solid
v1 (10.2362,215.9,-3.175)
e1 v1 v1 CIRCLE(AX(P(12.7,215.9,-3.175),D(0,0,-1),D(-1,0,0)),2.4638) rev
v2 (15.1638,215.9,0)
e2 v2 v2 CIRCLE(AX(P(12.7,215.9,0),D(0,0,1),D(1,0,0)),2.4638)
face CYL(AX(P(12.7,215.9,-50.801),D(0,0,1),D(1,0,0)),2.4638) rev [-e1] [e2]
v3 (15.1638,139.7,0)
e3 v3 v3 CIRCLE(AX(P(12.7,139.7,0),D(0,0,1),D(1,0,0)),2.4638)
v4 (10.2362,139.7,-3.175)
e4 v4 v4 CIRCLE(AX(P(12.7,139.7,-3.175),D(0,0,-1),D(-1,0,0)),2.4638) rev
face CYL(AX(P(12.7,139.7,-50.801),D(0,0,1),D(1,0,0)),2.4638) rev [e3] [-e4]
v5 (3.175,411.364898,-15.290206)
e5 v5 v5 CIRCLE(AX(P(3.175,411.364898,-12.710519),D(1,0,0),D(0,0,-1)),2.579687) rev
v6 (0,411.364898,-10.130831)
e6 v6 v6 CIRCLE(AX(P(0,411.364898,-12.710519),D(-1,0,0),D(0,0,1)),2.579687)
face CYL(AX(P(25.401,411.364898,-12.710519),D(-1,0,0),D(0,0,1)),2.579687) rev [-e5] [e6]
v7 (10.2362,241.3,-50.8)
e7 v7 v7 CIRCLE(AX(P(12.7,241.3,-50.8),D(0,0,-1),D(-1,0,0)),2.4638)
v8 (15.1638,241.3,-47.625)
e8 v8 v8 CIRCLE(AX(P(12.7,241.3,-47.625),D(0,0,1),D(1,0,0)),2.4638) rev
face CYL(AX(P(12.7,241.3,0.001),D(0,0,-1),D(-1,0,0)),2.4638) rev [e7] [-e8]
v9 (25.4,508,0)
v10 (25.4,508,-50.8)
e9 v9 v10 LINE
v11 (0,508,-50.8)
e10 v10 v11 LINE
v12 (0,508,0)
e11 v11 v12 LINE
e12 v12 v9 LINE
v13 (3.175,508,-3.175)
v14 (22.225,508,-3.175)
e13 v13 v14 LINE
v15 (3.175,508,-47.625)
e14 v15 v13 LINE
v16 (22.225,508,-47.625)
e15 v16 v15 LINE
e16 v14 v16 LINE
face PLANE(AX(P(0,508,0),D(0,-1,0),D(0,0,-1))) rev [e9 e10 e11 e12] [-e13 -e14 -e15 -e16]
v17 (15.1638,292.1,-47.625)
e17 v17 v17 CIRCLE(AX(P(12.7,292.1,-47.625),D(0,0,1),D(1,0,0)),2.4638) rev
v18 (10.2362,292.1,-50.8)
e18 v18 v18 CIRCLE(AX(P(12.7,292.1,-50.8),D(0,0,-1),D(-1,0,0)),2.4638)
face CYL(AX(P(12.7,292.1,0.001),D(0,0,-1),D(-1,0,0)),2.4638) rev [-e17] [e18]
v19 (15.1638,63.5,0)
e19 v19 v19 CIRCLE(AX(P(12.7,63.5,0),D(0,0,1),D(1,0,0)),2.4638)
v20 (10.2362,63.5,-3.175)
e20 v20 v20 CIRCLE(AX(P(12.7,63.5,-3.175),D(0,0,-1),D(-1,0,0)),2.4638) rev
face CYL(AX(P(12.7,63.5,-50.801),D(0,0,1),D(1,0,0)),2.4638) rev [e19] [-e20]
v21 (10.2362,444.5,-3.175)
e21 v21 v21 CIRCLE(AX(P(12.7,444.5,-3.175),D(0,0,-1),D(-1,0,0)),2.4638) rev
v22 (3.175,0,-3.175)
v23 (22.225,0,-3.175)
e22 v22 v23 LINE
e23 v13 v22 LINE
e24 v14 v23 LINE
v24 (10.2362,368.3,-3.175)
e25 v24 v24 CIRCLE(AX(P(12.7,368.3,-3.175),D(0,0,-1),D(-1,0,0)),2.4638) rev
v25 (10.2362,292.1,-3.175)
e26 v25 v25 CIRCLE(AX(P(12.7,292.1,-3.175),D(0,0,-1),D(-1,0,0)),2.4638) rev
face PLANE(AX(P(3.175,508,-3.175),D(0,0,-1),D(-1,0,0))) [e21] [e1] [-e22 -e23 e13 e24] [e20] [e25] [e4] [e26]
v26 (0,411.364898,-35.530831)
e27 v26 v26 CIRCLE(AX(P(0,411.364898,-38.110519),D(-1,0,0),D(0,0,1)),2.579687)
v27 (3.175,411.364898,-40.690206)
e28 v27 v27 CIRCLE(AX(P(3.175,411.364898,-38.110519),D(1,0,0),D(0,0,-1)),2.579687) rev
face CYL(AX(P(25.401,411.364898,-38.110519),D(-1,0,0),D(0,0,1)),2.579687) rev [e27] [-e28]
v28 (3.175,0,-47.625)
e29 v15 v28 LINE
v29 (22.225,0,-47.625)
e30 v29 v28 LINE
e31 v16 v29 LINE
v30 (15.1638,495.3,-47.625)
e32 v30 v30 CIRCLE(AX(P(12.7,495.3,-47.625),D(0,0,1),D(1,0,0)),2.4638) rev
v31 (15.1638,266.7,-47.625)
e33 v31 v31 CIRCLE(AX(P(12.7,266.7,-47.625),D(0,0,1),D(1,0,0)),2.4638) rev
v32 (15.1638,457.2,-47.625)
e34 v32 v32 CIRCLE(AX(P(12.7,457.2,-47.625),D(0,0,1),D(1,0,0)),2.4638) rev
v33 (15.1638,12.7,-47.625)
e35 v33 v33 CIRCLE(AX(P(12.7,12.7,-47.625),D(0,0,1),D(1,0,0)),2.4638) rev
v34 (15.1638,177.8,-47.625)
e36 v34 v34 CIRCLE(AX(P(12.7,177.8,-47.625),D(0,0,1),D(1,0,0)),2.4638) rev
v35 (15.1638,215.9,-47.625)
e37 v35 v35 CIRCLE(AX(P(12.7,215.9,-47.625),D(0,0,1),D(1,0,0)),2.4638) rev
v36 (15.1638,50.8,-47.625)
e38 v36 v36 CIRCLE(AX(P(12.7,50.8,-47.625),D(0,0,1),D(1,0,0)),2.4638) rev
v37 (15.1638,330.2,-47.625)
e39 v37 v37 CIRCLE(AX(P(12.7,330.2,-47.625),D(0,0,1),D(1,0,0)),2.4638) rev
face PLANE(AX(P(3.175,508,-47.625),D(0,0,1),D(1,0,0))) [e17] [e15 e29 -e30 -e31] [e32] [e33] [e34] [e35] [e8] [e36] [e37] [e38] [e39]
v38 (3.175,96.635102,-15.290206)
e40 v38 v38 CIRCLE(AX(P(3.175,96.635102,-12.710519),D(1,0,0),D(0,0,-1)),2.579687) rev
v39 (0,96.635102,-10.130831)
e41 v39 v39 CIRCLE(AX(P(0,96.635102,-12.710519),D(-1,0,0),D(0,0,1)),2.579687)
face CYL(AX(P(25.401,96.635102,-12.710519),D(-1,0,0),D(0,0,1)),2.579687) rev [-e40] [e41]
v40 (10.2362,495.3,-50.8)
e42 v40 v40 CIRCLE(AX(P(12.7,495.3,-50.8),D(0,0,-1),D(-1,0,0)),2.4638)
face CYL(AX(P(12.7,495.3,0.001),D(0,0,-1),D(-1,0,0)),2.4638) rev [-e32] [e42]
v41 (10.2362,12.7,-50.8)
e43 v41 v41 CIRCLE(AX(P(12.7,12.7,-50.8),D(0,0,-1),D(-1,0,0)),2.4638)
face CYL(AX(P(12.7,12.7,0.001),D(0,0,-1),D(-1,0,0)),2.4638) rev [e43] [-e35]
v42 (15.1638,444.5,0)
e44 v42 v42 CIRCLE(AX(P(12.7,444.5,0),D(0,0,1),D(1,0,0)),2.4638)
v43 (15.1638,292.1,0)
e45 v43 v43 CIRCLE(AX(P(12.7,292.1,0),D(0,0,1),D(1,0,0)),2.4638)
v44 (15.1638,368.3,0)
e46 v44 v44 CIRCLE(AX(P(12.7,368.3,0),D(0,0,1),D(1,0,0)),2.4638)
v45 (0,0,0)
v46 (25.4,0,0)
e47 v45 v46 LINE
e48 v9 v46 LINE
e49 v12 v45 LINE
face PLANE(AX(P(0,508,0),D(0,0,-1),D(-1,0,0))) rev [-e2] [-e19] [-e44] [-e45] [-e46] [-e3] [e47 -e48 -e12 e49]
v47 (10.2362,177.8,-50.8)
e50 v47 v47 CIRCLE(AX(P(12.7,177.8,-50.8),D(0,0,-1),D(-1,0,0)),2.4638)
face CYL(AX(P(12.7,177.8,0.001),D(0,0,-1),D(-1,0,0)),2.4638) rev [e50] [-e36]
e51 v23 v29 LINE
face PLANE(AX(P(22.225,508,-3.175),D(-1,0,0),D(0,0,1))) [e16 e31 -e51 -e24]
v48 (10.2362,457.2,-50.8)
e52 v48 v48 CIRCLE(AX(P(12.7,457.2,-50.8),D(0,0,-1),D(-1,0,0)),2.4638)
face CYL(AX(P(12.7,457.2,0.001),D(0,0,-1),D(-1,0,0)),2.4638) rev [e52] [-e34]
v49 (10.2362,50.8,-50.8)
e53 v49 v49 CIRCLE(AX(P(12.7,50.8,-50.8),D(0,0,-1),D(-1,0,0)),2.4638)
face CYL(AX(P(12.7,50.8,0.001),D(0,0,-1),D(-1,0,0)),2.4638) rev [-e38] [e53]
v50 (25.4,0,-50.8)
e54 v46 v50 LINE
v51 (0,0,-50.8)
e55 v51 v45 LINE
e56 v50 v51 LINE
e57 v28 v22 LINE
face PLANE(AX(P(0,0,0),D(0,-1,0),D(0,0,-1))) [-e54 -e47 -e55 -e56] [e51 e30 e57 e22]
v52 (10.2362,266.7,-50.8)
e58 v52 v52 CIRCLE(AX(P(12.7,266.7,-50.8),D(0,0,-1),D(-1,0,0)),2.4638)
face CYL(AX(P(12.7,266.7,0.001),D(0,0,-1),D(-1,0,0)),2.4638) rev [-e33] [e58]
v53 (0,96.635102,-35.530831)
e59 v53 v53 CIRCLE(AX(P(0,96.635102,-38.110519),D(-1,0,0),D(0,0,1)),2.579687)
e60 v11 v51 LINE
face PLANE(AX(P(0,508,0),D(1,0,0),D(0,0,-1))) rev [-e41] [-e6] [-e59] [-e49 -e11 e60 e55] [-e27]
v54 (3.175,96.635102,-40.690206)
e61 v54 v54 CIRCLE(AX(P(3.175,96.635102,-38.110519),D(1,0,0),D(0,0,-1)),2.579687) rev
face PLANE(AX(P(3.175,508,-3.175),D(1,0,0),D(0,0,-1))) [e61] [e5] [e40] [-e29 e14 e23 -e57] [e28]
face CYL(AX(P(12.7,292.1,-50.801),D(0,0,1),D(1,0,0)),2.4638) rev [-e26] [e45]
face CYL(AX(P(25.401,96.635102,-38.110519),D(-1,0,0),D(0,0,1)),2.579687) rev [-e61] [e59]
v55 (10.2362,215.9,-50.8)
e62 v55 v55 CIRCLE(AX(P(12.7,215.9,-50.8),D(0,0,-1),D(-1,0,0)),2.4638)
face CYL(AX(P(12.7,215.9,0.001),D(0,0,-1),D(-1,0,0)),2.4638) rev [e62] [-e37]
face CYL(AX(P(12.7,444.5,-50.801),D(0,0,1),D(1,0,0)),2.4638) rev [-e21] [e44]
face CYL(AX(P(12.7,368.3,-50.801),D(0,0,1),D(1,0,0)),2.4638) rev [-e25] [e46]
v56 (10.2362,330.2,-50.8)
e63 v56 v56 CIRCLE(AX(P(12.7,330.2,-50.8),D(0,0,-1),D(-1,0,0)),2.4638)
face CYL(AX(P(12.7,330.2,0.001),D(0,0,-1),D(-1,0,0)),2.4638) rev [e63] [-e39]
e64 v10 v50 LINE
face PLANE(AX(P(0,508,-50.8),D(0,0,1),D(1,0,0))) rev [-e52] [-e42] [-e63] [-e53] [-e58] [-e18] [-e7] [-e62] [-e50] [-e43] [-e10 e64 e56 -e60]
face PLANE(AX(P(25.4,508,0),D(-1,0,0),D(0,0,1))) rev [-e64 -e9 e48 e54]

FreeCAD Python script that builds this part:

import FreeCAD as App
import Part
import Sketcher

V = App.Vector
Q = App.Units.Quantity

doc = App.newDocument("Part")
body = doc.addObject("PartDesign::Body", "Body")

# Sketch on XZ plane
sketch1 = body.newObject("Sketcher::SketchObject", "Sketch")
sketch1.AttachmentSupport = (doc.getObject("XZ_Plane"), [""])
sketch1.MapMode = "FlatFace"
sketch1.addGeometry([
    Part.LineSegment(V(0, -51, 0), V(0, 0, 0)),  # 0
    Part.LineSegment(V(0, 0, 0), V(25, 0, 0)),  # 1
    Part.LineSegment(V(25, 0, 0), V(25, -51, 0)),  # 2
    Part.LineSegment(V(25, -51, 0), V(0, -51, 0)),  # 3
    Part.LineSegment(V(22, -3, 0), V(3, -3, 0)),  # 4
    Part.LineSegment(V(3, -3, 0), V(3, -48, 0)),  # 5
    Part.LineSegment(V(3, -48, 0), V(22, -48, 0)),  # 6
    Part.LineSegment(V(22, -48, 0), V(22, -3, 0)),  # 7
], False)
sketch1.addConstraint([
    Sketcher.Constraint("Coincident", 0, 2, 1, 1),
    Sketcher.Constraint("Coincident", 1, 2, 2, 1),
    Sketcher.Constraint("Coincident", 2, 2, 3, 1),
    Sketcher.Constraint("Coincident", 3, 2, 0, 1),
    Sketcher.Constraint("Coincident", 4, 2, 5, 1),
    Sketcher.Constraint("Coincident", 5, 2, 6, 1),
    Sketcher.Constraint("Coincident", 6, 2, 7, 1),
    Sketcher.Constraint("Coincident", 7, 2, 4, 1),
    Sketcher.Constraint("Vertical", 0),
    Sketcher.Constraint("Horizontal", 1),
    Sketcher.Constraint("Vertical", 2),
    Sketcher.Constraint("Horizontal", 3),
    Sketcher.Constraint("Horizontal", 4),
    Sketcher.Constraint("Vertical", 5),
    Sketcher.Constraint("Horizontal", 6),
    Sketcher.Constraint("Vertical", 7),
    Sketcher.Constraint("Coincident", 0, 2, -1, 1),
    Sketcher.Constraint("DistanceX", 1, 1, 1, 2, Q("1 in")),
    Sketcher.Constraint("DistanceY", 0, 1, 0, 2, Q("2 in")),
    Sketcher.Constraint("DistanceX", 4, 2, 4, 1, Q("0.75 in")),
    Sketcher.Constraint("DistanceY", 5, 2, 5, 1, Q("1.75 in")),
    Sketcher.Constraint("DistanceX", -1, 1, 4, 2, Q("0.125 in")),
    Sketcher.Constraint("DistanceY", 4, 2, -1, 1, Q("0.125 in")),
])
pad1 = body.newObject("PartDesign::Pad", "Pad")
pad1.Profile = sketch1
pad1.Length = Q("20 in")
pad1.Reversed = True

# Sketch on XY plane
sketch2 = body.newObject("Sketcher::SketchObject", "Sketch001")
sketch2.AttachmentSupport = (doc.getObject("XY_Plane"), [""])
sketch2.MapMode = "FlatFace"
sketch2.AttachmentOffset = App.Placement(V(0, 0, -2 * 25.4), App.Rotation())
sketch2.addGeometry(Part.Circle(V(12.7, 12.7, 0), V(0, 0, 1), 2.5), False)
sketch2.addConstraint([
    Sketcher.Constraint("Diameter", 0, Q("0.194 in")),
    Sketcher.Constraint("DistanceX", -1, 1, 0, 3, Q("0.5 in")),
    Sketcher.Constraint("DistanceY", -1, 1, 0, 3, Q("0.5 in")),
])
pocket1 = body.newObject("PartDesign::Pocket", "Pocket")
pocket1.Profile = sketch2
pocket1.Type = "UpToFirst"
pocket1.Reversed = True

# Sketch on XY plane
sketch3 = body.newObject("Sketcher::SketchObject", "Sketch002")
sketch3.AttachmentSupport = (doc.getObject("XY_Plane"), [""])
sketch3.MapMode = "FlatFace"
sketch3.AttachmentOffset = App.Placement(V(0, 0, -2 * 25.4), App.Rotation())
sketch3.addGeometry(Part.Circle(V(12.7, 50.8, 0), V(0, 0, 1), 2.5), False)
sketch3.addConstraint([
    Sketcher.Constraint("Diameter", 0, Q("0.194 in")),
    Sketcher.Constraint("DistanceY", -1, 1, 0, 3, Q("2 in")),
    Sketcher.Constraint("DistanceX", -1, 1, 0, 3, Q("0.5 in")),
])
pocket2 = body.newObject("PartDesign::Pocket", "Pocket001")
pocket2.Profile = sketch3
pocket2.Type = "UpToFirst"
pocket2.Reversed = True

# Sketch on XY plane
sketch4 = body.newObject("Sketcher::SketchObject", "Sketch003")
sketch4.AttachmentSupport = (doc.getObject("XY_Plane"), [""])
sketch4.MapMode = "FlatFace"
sketch4.AttachmentOffset = App.Placement(V(0, 0, -2 * 25.4), App.Rotation())
sketch4.addGeometry(Part.Circle(V(12.7, 177.8, 0), V(0, 0, 1), 2.5), False)
sketch4.addConstraint([
    Sketcher.Constraint("Diameter", 0, Q("0.194 in")),
    Sketcher.Constraint("DistanceY", -1, 1, 0, 3, Q("7 in")),
    Sketcher.Constraint("DistanceX", -1, 1, 0, 3, Q("0.5 in")),
])
pocket3 = body.newObject("PartDesign::Pocket", "Pocket002")
pocket3.Profile = sketch4
pocket3.Type = "UpToFirst"
pocket3.Reversed = True

# Sketch on XY plane
sketch5 = body.newObject("Sketcher::SketchObject", "Sketch004")
sketch5.AttachmentSupport = (doc.getObject("XY_Plane"), [""])
sketch5.MapMode = "FlatFace"
sketch5.AttachmentOffset = App.Placement(V(0, 0, -2 * 25.4), App.Rotation())
sketch5.addGeometry(Part.Circle(V(12.7, 215.9, 0), V(0, 0, 1), 2.5), False)
sketch5.addConstraint([
    Sketcher.Constraint("Diameter", 0, Q("0.194 in")),
    Sketcher.Constraint("DistanceX", -1, 1, 0, 3, Q("0.5 in")),
    Sketcher.Constraint("DistanceY", -1, 1, 0, 3, Q("8.5 in")),
])
pocket4 = body.newObject("PartDesign::Pocket", "Pocket003")
pocket4.Profile = sketch5
pocket4.Type = "UpToFirst"
pocket4.Reversed = True

# Sketch on XY plane
sketch6 = body.newObject("Sketcher::SketchObject", "Sketch005")
sketch6.AttachmentSupport = (doc.getObject("XY_Plane"), [""])
sketch6.MapMode = "FlatFace"
sketch6.AttachmentOffset = App.Placement(V(0, 0, -2 * 25.4), App.Rotation())
sketch6.addGeometry(Part.Circle(V(12.7, 241.3, 0), V(0, 0, 1), 2.5), False)
sketch6.addConstraint([
    Sketcher.Constraint("Diameter", 0, Q("0.194 in")),
    Sketcher.Constraint("DistanceX", -1, 1, 0, 3, Q("0.5 in")),
    Sketcher.Constraint("DistanceY", -1, 1, 0, 3, Q("9.5 in")),
])
pocket5 = body.newObject("PartDesign::Pocket", "Pocket004")
pocket5.Profile = sketch6
pocket5.Type = "UpToFirst"
pocket5.Reversed = True

# Sketch on XY plane
sketch7 = body.newObject("Sketcher::SketchObject", "Sketch006")
sketch7.AttachmentSupport = (doc.getObject("XY_Plane"), [""])
sketch7.MapMode = "FlatFace"
sketch7.AttachmentOffset = App.Placement(V(0, 0, -2 * 25.4), App.Rotation())
sketch7.addGeometry(Part.Circle(V(12.7, 266.7, 0), V(0, 0, 1), 2.5), False)
sketch7.addConstraint([
    Sketcher.Constraint("Diameter", 0, Q("0.194 in")),
    Sketcher.Constraint("DistanceX", -1, 1, 0, 3, Q("0.5 in")),
    Sketcher.Constraint("DistanceY", -1, 1, 0, 3, Q("10.5 in")),
])
pocket6 = body.newObject("PartDesign::Pocket", "Pocket005")
pocket6.Profile = sketch7
pocket6.Type = "UpToFirst"
pocket6.Reversed = True

# Sketch on XY plane
sketch8 = body.newObject("Sketcher::SketchObject", "Sketch007")
sketch8.AttachmentSupport = (doc.getObject("XY_Plane"), [""])
sketch8.MapMode = "FlatFace"
sketch8.AttachmentOffset = App.Placement(V(0, 0, -2 * 25.4), App.Rotation())
sketch8.addGeometry(Part.Circle(V(12.7, 292.1, 0), V(0, 0, 1), 2.5), False)
sketch8.addConstraint([
    Sketcher.Constraint("Diameter", 0, Q("0.194 in")),
    Sketcher.Constraint("DistanceX", -1, 1, 0, 3, Q("0.5 in")),
    Sketcher.Constraint("DistanceY", -1, 1, 0, 3, Q("11.5 in")),
])
pocket7 = body.newObject("PartDesign::Pocket", "Pocket006")
pocket7.Profile = sketch8
pocket7.Type = "UpToFirst"
pocket7.Reversed = True

# Sketch on XY plane
sketch9 = body.newObject("Sketcher::SketchObject", "Sketch008")
sketch9.AttachmentSupport = (doc.getObject("XY_Plane"), [""])
sketch9.MapMode = "FlatFace"
sketch9.AttachmentOffset = App.Placement(V(0, 0, -2 * 25.4), App.Rotation())
sketch9.addGeometry(Part.Circle(V(12.7, 330.2, 0), V(0, 0, 1), 2.5), False)
sketch9.addConstraint([
    Sketcher.Constraint("Diameter", 0, Q("0.194 in")),
    Sketcher.Constraint("DistanceY", -1, 1, 0, 3, Q("13 in")),
    Sketcher.Constraint("DistanceX", -1, 1, 0, 3, Q("0.5 in")),
])
pocket8 = body.newObject("PartDesign::Pocket", "Pocket007")
pocket8.Profile = sketch9
pocket8.Type = "UpToFirst"
pocket8.Reversed = True

# Sketch on XY plane
sketch10 = body.newObject("Sketcher::SketchObject", "Sketch009")
sketch10.AttachmentSupport = (doc.getObject("XY_Plane"), [""])
sketch10.MapMode = "FlatFace"
sketch10.AttachmentOffset = App.Placement(V(0, 0, -2 * 25.4), App.Rotation())
sketch10.addGeometry(Part.Circle(V(12.7, 457.2, 0), V(0, 0, 1), 2.5), False)
sketch10.addConstraint([
    Sketcher.Constraint("Diameter", 0, Q("0.194 in")),
    Sketcher.Constraint("DistanceY", -1, 1, 0, 3, Q("18 in")),
    Sketcher.Constraint("DistanceX", -1, 1, 0, 3, Q("0.5 in")),
])
pocket9 = body.newObject("PartDesign::Pocket", "Pocket008")
pocket9.Profile = sketch10
pocket9.Type = "UpToFirst"
pocket9.Reversed = True

# Sketch on XY plane
sketch11 = body.newObject("Sketcher::SketchObject", "Sketch010")
sketch11.AttachmentSupport = (doc.getObject("XY_Plane"), [""])
sketch11.MapMode = "FlatFace"
sketch11.AttachmentOffset = App.Placement(V(0, 0, -2 * 25.4), App.Rotation())
sketch11.addGeometry(Part.Circle(V(12.7, 495.3, 0), V(0, 0, 1), 2.5), False)
sketch11.addConstraint([
    Sketcher.Constraint("Diameter", 0, Q("0.194 in")),
    Sketcher.Constraint("DistanceX", -1, 1, 0, 3, Q("0.5 in")),
    Sketcher.Constraint("DistanceY", -1, 1, 0, 3, Q("19.5 in")),
])
pocket10 = body.newObject("PartDesign::Pocket", "Pocket009")
pocket10.Profile = sketch11
pocket10.Type = "UpToFirst"
pocket10.Reversed = True

# Sketch on XY plane
sketch12 = body.newObject("Sketcher::SketchObject", "Sketch011")
sketch12.AttachmentSupport = (doc.getObject("XY_Plane"), [""])
sketch12.MapMode = "FlatFace"
sketch12.addGeometry(Part.Circle(V(12.7, 63.5, 0), V(0, 0, 1), 2.5), False)
sketch12.addConstraint([
    Sketcher.Constraint("Diameter", 0, Q("0.194 in")),
    Sketcher.Constraint("DistanceX", -1, 1, 0, 3, Q("0.5 in")),
    Sketcher.Constraint("DistanceY", -1, 1, 0, 3, Q("2.5 in")),
])
pocket11 = body.newObject("PartDesign::Pocket", "Pocket010")
pocket11.Profile = sketch12
pocket11.Type = "UpToFirst"

# Sketch on XY plane
sketch13 = body.newObject("Sketcher::SketchObject", "Sketch012")
sketch13.AttachmentSupport = (doc.getObject("XY_Plane"), [""])
sketch13.MapMode = "FlatFace"
sketch13.addGeometry(Part.Circle(V(12.7, 139.7, 0), V(0, 0, 1), 2.5), False)
sketch13.addConstraint([
    Sketcher.Constraint("Diameter", 0, Q("0.194 in")),
    Sketcher.Constraint("DistanceX", -1, 1, 0, 3, Q("0.5 in")),
    Sketcher.Constraint("DistanceY", -1, 1, 0, 3, Q("5.5 in")),
])
pocket12 = body.newObject("PartDesign::Pocket", "Pocket011")
pocket12.Profile = sketch13
pocket12.Type = "UpToFirst"

# Sketch on XY plane
sketch14 = body.newObject("Sketcher::SketchObject", "Sketch013")
sketch14.AttachmentSupport = (doc.getObject("XY_Plane"), [""])
sketch14.MapMode = "FlatFace"
sketch14.addGeometry(Part.Circle(V(12.7, 215.9, 0), V(0, 0, 1), 2.5), False)
sketch14.addConstraint([
    Sketcher.Constraint("Diameter", 0, Q("0.194 in")),
    Sketcher.Constraint("DistanceX", -1, 1, 0, 3, Q("0.5 in")),
    Sketcher.Constraint("DistanceY", -1, 1, 0, 3, Q("8.5 in")),
])
pocket13 = body.newObject("PartDesign::Pocket", "Pocket012")
pocket13.Profile = sketch14
pocket13.Type = "UpToFirst"

# Sketch on XY plane
sketch15 = body.newObject("Sketcher::SketchObject", "Sketch014")
sketch15.AttachmentSupport = (doc.getObject("XY_Plane"), [""])
sketch15.MapMode = "FlatFace"
sketch15.addGeometry(Part.Circle(V(12.7, 292.1, 0), V(0, 0, 1), 2.5), False)
sketch15.addConstraint([
    Sketcher.Constraint("Diameter", 0, Q("0.194 in")),
    Sketcher.Constraint("DistanceX", -1, 1, 0, 3, Q("0.5 in")),
    Sketcher.Constraint("DistanceY", -1, 1, 0, 3, Q("11.5 in")),
])
pocket14 = body.newObject("PartDesign::Pocket", "Pocket013")
pocket14.Profile = sketch15
pocket14.Type = "UpToFirst"

# Sketch on XY plane
sketch16 = body.newObject("Sketcher::SketchObject", "Sketch015")
sketch16.AttachmentSupport = (doc.getObject("XY_Plane"), [""])
sketch16.MapMode = "FlatFace"
sketch16.addGeometry(Part.Circle(V(12.7, 368.3, 0), V(0, 0, 1), 2.5), False)
sketch16.addConstraint([
    Sketcher.Constraint("Diameter", 0, Q("0.194 in")),
    Sketcher.Constraint("DistanceX", -1, 1, 0, 3, Q("0.5 in")),
    Sketcher.Constraint("DistanceY", -1, 1, 0, 3, Q("14.5 in")),
])
pocket15 = body.newObject("PartDesign::Pocket", "Pocket014")
pocket15.Profile = sketch16
pocket15.Type = "UpToFirst"

# Sketch on XY plane
sketch17 = body.newObject("Sketcher::SketchObject", "Sketch016")
sketch17.AttachmentSupport = (doc.getObject("XY_Plane"), [""])
sketch17.MapMode = "FlatFace"
sketch17.addGeometry(Part.Circle(V(12.7, 444.5, 0), V(0, 0, 1), 2.5), False)
sketch17.addConstraint([
    Sketcher.Constraint("Diameter", 0, Q("0.194 in")),
    Sketcher.Constraint("DistanceX", -1, 1, 0, 3, Q("0.5 in")),
    Sketcher.Constraint("DistanceY", -1, 1, 0, 3, Q("17.5 in")),
])
pocket16 = body.newObject("PartDesign::Pocket", "Pocket015")
pocket16.Profile = sketch17
pocket16.Type = "UpToFirst"

# Sketch on YZ plane
sketch18 = body.newObject("Sketcher::SketchObject", "Sketch017")
sketch18.AttachmentSupport = (doc.getObject("YZ_Plane"), [""])
sketch18.MapMode = "FlatFace"
sketch18.addGeometry(Part.Circle(V(96.6, -38.1, 0), V(0, 0, 1), 2.6), False)
sketch18.addConstraint([
    Sketcher.Constraint("Diameter", 0, Q("0.203125 in")),
    Sketcher.Constraint("DistanceX", -1, 1, 0, 3, Q("96.635102 mm")),
    Sketcher.Constraint("DistanceY", 0, 3, -1, 1, Q("38.110519 mm")),
])
pocket17 = body.newObject("PartDesign::Pocket", "Pocket016")
pocket17.Profile = sketch18
pocket17.Type = "UpToFirst"
pocket17.Reversed = True

# Sketch on YZ plane
sketch19 = body.newObject("Sketcher::SketchObject", "Sketch018")
sketch19.AttachmentSupport = (doc.getObject("YZ_Plane"), [""])
sketch19.MapMode = "FlatFace"
sketch19.addGeometry(Part.Circle(V(411.4, -38.1, 0), V(0, 0, 1), 2.6), False)
sketch19.addConstraint([
    Sketcher.Constraint("Diameter", 0, Q("0.203125 in")),
    Sketcher.Constraint("DistanceX", -1, 1, 0, 3, Q("411.364898 mm")),
    Sketcher.Constraint("DistanceY", 0, 3, -1, 1, Q("38.110519 mm")),
])
pocket18 = body.newObject("PartDesign::Pocket", "Pocket017")
pocket18.Profile = sketch19
pocket18.Type = "UpToFirst"
pocket18.Reversed = True

# Sketch on YZ plane
sketch20 = body.newObject("Sketcher::SketchObject", "Sketch019")
sketch20.AttachmentSupport = (doc.getObject("YZ_Plane"), [""])
sketch20.MapMode = "FlatFace"
sketch20.addGeometry(Part.Circle(V(411.4, -12.7, 0), V(0, 0, 1), 2.6), False)
sketch20.addConstraint([
    Sketcher.Constraint("Diameter", 0, Q("0.203125 in")),
    Sketcher.Constraint("DistanceX", -1, 1, 0, 3, Q("411.364898 mm")),
    Sketcher.Constraint("DistanceY", 0, 3, -1, 1, Q("12.710519 mm")),
])
pocket19 = body.newObject("PartDesign::Pocket", "Pocket018")
pocket19.Profile = sketch20
pocket19.Type = "UpToFirst"
pocket19.Reversed = True

# Sketch on YZ plane
sketch21 = body.newObject("Sketcher::SketchObject", "Sketch020")
sketch21.AttachmentSupport = (doc.getObject("YZ_Plane"), [""])
sketch21.MapMode = "FlatFace"
sketch21.addGeometry(Part.Circle(V(96.6, -12.7, 0), V(0, 0, 1), 2.6), False)
sketch21.addConstraint([
    Sketcher.Constraint("Diameter", 0, Q("0.203125 in")),
    Sketcher.Constraint("DistanceX", -1, 1, 0, 3, Q("96.635102 mm")),
    Sketcher.Constraint("DistanceY", 0, 3, -1, 1, Q("12.710519 mm")),
])
pocket20 = body.newObject("PartDesign::Pocket", "Pocket019")
pocket20.Profile = sketch21
pocket20.Type = "UpToFirst"
pocket20.Reversed = True

doc.recompute()
